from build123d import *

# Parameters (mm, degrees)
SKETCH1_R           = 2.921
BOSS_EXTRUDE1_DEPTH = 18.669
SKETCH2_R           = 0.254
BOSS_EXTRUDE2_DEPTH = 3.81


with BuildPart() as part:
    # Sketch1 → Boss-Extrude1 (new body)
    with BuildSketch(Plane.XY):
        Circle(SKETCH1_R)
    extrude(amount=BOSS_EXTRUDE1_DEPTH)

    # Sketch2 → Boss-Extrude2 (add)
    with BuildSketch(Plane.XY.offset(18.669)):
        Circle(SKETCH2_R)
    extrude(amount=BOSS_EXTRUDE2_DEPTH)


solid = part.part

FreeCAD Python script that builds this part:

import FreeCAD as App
import Part
import Sketcher
from FreeCAD import Vector
Q = App.Units.Quantity

doc = App.newDocument("Part")
body = doc.addObject("PartDesign::Body", "Body")

# Sketch on XY plane
sketch1 = doc.addObject("Sketcher::SketchObject", "Sketch")
body.addObject(sketch1)
sketch1.AttachmentSupport = (doc.XY_Plane, [""])
sketch1.MapMode = "FlatFace"
sketch1.addGeometry(Part.Circle(Vector(0, 0, 0), Vector(0, 0, 1), 2.9), False)
sketch1.addConstraint([
    Sketcher.Constraint("Coincident", 0, 3, -1, 1),
    Sketcher.Constraint("Diameter", 0, Q("0.23 in")),
])
pad1 = doc.addObject("PartDesign::Pad", "Pad")
body.addObject(pad1)
pad1.Profile = sketch1
pad1.Length = Q("0.735 in")

# Sketch on XY plane
sketch2 = doc.addObject("Sketcher::SketchObject", "Sketch001")
body.addObject(sketch2)
sketch2.AttachmentSupport = (doc.XY_Plane, [""])
sketch2.MapMode = "FlatFace"
sketch2.AttachmentOffset = App.Placement(Vector(0, 0, 0.735 * 25.4), App.Rotation())
sketch2.addGeometry(Part.Circle(Vector(0, 0, 0), Vector(0, 0, 1), 0.25), False)
sketch2.addConstraint([
    Sketcher.Constraint("Coincident", 0, 3, -1, 1),
    Sketcher.Constraint("Diameter", 0, Q("0.02 in")),
])
pad2 = doc.addObject("PartDesign::Pad", "Pad001")
body.addObject(pad2)
pad2.Profile = sketch2
pad2.Length = Q("0.15 in")

doc.recompute()
